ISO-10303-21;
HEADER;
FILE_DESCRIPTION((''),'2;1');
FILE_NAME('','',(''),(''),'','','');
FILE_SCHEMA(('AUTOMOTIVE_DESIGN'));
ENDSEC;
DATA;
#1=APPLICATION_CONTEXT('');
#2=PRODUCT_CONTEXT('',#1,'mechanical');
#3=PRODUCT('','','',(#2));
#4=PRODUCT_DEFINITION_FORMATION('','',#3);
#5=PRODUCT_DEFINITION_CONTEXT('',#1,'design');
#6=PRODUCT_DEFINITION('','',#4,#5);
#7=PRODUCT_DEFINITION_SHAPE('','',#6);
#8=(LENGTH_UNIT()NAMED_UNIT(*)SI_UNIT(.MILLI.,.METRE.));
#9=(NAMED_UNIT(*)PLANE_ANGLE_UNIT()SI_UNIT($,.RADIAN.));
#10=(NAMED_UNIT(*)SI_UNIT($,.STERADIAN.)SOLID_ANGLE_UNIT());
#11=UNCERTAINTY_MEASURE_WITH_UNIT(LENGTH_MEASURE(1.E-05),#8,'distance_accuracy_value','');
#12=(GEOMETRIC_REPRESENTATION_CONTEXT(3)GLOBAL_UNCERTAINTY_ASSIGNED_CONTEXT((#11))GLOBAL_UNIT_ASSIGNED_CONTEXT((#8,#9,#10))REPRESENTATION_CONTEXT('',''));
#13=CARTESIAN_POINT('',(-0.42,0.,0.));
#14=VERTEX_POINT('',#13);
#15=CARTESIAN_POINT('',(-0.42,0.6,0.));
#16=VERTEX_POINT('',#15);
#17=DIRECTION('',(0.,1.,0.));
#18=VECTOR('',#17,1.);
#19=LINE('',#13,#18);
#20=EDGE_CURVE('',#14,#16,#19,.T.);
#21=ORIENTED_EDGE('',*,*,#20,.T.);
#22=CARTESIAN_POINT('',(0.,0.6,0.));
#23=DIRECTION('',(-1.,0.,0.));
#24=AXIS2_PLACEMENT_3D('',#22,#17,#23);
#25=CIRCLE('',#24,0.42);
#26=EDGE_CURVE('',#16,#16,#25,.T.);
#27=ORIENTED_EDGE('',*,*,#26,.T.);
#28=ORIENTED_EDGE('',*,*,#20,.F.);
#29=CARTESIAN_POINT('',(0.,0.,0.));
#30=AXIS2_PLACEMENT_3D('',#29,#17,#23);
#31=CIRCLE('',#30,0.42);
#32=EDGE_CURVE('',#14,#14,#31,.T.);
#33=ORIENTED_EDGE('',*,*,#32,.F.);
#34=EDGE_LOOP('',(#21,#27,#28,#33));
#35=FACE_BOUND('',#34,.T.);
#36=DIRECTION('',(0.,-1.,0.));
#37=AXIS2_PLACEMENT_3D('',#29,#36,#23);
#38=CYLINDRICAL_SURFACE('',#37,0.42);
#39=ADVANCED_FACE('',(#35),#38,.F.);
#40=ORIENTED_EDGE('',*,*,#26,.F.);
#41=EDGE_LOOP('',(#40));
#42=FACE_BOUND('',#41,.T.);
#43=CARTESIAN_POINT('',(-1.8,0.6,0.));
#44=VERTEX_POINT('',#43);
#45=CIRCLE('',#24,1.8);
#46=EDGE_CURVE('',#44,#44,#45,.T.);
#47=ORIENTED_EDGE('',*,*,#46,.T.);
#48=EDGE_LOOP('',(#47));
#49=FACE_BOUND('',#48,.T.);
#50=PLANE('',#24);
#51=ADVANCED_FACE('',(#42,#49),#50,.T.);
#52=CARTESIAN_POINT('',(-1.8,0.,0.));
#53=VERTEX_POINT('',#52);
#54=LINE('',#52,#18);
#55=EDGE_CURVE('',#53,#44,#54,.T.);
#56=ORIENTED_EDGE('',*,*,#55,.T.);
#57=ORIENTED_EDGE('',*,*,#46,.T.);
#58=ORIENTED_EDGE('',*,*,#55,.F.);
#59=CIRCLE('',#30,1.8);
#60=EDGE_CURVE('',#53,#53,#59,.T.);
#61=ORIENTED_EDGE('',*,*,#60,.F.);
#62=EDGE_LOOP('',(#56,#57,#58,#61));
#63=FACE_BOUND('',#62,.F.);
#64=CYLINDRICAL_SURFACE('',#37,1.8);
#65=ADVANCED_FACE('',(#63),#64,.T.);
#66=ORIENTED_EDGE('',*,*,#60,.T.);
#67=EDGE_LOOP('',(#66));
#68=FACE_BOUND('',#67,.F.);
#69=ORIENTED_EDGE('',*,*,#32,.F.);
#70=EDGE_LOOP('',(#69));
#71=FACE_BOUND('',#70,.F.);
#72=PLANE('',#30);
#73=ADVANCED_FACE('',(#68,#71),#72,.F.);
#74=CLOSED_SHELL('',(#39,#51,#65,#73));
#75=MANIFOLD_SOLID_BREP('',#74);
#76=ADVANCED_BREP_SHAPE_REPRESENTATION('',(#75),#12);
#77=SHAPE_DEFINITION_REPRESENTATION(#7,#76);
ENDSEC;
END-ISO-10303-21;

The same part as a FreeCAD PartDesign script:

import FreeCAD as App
import Part
import Sketcher
Q = App.Units.Quantity

doc = App.newDocument("Part")
body = doc.addObject("PartDesign::Body", "Body")

sketch1 = body.newObject("Sketcher::SketchObject", "Sketch")
sketch1.AttachmentSupport = (doc.getObject("XZ_Plane"), [""])
sketch1.MapMode = "FlatFace"
sketch1.addGeometry([
    Part.Circle(App.Vector(0, 0, 0), App.Vector(0, 0, 1), 1.8),
    Part.Circle(App.Vector(0, 0, 0), App.Vector(0, 0, 1), 0.42),
], False)
sketch1.addConstraint([
    Sketcher.Constraint("Coincident", 0, 3, -1, 1),
    Sketcher.Constraint("Coincident", 1, 3, -1, 1),
    Sketcher.Constraint("Diameter", 0, Q("3.6 mm")),
    Sketcher.Constraint("Diameter", 1, Q("0.84 mm")),
])
pad1 = body.newObject("PartDesign::Pad", "Pad")
pad1.Profile = sketch1
pad1.Length = 0.6
pad1.Reversed = True

doc.recompute()
